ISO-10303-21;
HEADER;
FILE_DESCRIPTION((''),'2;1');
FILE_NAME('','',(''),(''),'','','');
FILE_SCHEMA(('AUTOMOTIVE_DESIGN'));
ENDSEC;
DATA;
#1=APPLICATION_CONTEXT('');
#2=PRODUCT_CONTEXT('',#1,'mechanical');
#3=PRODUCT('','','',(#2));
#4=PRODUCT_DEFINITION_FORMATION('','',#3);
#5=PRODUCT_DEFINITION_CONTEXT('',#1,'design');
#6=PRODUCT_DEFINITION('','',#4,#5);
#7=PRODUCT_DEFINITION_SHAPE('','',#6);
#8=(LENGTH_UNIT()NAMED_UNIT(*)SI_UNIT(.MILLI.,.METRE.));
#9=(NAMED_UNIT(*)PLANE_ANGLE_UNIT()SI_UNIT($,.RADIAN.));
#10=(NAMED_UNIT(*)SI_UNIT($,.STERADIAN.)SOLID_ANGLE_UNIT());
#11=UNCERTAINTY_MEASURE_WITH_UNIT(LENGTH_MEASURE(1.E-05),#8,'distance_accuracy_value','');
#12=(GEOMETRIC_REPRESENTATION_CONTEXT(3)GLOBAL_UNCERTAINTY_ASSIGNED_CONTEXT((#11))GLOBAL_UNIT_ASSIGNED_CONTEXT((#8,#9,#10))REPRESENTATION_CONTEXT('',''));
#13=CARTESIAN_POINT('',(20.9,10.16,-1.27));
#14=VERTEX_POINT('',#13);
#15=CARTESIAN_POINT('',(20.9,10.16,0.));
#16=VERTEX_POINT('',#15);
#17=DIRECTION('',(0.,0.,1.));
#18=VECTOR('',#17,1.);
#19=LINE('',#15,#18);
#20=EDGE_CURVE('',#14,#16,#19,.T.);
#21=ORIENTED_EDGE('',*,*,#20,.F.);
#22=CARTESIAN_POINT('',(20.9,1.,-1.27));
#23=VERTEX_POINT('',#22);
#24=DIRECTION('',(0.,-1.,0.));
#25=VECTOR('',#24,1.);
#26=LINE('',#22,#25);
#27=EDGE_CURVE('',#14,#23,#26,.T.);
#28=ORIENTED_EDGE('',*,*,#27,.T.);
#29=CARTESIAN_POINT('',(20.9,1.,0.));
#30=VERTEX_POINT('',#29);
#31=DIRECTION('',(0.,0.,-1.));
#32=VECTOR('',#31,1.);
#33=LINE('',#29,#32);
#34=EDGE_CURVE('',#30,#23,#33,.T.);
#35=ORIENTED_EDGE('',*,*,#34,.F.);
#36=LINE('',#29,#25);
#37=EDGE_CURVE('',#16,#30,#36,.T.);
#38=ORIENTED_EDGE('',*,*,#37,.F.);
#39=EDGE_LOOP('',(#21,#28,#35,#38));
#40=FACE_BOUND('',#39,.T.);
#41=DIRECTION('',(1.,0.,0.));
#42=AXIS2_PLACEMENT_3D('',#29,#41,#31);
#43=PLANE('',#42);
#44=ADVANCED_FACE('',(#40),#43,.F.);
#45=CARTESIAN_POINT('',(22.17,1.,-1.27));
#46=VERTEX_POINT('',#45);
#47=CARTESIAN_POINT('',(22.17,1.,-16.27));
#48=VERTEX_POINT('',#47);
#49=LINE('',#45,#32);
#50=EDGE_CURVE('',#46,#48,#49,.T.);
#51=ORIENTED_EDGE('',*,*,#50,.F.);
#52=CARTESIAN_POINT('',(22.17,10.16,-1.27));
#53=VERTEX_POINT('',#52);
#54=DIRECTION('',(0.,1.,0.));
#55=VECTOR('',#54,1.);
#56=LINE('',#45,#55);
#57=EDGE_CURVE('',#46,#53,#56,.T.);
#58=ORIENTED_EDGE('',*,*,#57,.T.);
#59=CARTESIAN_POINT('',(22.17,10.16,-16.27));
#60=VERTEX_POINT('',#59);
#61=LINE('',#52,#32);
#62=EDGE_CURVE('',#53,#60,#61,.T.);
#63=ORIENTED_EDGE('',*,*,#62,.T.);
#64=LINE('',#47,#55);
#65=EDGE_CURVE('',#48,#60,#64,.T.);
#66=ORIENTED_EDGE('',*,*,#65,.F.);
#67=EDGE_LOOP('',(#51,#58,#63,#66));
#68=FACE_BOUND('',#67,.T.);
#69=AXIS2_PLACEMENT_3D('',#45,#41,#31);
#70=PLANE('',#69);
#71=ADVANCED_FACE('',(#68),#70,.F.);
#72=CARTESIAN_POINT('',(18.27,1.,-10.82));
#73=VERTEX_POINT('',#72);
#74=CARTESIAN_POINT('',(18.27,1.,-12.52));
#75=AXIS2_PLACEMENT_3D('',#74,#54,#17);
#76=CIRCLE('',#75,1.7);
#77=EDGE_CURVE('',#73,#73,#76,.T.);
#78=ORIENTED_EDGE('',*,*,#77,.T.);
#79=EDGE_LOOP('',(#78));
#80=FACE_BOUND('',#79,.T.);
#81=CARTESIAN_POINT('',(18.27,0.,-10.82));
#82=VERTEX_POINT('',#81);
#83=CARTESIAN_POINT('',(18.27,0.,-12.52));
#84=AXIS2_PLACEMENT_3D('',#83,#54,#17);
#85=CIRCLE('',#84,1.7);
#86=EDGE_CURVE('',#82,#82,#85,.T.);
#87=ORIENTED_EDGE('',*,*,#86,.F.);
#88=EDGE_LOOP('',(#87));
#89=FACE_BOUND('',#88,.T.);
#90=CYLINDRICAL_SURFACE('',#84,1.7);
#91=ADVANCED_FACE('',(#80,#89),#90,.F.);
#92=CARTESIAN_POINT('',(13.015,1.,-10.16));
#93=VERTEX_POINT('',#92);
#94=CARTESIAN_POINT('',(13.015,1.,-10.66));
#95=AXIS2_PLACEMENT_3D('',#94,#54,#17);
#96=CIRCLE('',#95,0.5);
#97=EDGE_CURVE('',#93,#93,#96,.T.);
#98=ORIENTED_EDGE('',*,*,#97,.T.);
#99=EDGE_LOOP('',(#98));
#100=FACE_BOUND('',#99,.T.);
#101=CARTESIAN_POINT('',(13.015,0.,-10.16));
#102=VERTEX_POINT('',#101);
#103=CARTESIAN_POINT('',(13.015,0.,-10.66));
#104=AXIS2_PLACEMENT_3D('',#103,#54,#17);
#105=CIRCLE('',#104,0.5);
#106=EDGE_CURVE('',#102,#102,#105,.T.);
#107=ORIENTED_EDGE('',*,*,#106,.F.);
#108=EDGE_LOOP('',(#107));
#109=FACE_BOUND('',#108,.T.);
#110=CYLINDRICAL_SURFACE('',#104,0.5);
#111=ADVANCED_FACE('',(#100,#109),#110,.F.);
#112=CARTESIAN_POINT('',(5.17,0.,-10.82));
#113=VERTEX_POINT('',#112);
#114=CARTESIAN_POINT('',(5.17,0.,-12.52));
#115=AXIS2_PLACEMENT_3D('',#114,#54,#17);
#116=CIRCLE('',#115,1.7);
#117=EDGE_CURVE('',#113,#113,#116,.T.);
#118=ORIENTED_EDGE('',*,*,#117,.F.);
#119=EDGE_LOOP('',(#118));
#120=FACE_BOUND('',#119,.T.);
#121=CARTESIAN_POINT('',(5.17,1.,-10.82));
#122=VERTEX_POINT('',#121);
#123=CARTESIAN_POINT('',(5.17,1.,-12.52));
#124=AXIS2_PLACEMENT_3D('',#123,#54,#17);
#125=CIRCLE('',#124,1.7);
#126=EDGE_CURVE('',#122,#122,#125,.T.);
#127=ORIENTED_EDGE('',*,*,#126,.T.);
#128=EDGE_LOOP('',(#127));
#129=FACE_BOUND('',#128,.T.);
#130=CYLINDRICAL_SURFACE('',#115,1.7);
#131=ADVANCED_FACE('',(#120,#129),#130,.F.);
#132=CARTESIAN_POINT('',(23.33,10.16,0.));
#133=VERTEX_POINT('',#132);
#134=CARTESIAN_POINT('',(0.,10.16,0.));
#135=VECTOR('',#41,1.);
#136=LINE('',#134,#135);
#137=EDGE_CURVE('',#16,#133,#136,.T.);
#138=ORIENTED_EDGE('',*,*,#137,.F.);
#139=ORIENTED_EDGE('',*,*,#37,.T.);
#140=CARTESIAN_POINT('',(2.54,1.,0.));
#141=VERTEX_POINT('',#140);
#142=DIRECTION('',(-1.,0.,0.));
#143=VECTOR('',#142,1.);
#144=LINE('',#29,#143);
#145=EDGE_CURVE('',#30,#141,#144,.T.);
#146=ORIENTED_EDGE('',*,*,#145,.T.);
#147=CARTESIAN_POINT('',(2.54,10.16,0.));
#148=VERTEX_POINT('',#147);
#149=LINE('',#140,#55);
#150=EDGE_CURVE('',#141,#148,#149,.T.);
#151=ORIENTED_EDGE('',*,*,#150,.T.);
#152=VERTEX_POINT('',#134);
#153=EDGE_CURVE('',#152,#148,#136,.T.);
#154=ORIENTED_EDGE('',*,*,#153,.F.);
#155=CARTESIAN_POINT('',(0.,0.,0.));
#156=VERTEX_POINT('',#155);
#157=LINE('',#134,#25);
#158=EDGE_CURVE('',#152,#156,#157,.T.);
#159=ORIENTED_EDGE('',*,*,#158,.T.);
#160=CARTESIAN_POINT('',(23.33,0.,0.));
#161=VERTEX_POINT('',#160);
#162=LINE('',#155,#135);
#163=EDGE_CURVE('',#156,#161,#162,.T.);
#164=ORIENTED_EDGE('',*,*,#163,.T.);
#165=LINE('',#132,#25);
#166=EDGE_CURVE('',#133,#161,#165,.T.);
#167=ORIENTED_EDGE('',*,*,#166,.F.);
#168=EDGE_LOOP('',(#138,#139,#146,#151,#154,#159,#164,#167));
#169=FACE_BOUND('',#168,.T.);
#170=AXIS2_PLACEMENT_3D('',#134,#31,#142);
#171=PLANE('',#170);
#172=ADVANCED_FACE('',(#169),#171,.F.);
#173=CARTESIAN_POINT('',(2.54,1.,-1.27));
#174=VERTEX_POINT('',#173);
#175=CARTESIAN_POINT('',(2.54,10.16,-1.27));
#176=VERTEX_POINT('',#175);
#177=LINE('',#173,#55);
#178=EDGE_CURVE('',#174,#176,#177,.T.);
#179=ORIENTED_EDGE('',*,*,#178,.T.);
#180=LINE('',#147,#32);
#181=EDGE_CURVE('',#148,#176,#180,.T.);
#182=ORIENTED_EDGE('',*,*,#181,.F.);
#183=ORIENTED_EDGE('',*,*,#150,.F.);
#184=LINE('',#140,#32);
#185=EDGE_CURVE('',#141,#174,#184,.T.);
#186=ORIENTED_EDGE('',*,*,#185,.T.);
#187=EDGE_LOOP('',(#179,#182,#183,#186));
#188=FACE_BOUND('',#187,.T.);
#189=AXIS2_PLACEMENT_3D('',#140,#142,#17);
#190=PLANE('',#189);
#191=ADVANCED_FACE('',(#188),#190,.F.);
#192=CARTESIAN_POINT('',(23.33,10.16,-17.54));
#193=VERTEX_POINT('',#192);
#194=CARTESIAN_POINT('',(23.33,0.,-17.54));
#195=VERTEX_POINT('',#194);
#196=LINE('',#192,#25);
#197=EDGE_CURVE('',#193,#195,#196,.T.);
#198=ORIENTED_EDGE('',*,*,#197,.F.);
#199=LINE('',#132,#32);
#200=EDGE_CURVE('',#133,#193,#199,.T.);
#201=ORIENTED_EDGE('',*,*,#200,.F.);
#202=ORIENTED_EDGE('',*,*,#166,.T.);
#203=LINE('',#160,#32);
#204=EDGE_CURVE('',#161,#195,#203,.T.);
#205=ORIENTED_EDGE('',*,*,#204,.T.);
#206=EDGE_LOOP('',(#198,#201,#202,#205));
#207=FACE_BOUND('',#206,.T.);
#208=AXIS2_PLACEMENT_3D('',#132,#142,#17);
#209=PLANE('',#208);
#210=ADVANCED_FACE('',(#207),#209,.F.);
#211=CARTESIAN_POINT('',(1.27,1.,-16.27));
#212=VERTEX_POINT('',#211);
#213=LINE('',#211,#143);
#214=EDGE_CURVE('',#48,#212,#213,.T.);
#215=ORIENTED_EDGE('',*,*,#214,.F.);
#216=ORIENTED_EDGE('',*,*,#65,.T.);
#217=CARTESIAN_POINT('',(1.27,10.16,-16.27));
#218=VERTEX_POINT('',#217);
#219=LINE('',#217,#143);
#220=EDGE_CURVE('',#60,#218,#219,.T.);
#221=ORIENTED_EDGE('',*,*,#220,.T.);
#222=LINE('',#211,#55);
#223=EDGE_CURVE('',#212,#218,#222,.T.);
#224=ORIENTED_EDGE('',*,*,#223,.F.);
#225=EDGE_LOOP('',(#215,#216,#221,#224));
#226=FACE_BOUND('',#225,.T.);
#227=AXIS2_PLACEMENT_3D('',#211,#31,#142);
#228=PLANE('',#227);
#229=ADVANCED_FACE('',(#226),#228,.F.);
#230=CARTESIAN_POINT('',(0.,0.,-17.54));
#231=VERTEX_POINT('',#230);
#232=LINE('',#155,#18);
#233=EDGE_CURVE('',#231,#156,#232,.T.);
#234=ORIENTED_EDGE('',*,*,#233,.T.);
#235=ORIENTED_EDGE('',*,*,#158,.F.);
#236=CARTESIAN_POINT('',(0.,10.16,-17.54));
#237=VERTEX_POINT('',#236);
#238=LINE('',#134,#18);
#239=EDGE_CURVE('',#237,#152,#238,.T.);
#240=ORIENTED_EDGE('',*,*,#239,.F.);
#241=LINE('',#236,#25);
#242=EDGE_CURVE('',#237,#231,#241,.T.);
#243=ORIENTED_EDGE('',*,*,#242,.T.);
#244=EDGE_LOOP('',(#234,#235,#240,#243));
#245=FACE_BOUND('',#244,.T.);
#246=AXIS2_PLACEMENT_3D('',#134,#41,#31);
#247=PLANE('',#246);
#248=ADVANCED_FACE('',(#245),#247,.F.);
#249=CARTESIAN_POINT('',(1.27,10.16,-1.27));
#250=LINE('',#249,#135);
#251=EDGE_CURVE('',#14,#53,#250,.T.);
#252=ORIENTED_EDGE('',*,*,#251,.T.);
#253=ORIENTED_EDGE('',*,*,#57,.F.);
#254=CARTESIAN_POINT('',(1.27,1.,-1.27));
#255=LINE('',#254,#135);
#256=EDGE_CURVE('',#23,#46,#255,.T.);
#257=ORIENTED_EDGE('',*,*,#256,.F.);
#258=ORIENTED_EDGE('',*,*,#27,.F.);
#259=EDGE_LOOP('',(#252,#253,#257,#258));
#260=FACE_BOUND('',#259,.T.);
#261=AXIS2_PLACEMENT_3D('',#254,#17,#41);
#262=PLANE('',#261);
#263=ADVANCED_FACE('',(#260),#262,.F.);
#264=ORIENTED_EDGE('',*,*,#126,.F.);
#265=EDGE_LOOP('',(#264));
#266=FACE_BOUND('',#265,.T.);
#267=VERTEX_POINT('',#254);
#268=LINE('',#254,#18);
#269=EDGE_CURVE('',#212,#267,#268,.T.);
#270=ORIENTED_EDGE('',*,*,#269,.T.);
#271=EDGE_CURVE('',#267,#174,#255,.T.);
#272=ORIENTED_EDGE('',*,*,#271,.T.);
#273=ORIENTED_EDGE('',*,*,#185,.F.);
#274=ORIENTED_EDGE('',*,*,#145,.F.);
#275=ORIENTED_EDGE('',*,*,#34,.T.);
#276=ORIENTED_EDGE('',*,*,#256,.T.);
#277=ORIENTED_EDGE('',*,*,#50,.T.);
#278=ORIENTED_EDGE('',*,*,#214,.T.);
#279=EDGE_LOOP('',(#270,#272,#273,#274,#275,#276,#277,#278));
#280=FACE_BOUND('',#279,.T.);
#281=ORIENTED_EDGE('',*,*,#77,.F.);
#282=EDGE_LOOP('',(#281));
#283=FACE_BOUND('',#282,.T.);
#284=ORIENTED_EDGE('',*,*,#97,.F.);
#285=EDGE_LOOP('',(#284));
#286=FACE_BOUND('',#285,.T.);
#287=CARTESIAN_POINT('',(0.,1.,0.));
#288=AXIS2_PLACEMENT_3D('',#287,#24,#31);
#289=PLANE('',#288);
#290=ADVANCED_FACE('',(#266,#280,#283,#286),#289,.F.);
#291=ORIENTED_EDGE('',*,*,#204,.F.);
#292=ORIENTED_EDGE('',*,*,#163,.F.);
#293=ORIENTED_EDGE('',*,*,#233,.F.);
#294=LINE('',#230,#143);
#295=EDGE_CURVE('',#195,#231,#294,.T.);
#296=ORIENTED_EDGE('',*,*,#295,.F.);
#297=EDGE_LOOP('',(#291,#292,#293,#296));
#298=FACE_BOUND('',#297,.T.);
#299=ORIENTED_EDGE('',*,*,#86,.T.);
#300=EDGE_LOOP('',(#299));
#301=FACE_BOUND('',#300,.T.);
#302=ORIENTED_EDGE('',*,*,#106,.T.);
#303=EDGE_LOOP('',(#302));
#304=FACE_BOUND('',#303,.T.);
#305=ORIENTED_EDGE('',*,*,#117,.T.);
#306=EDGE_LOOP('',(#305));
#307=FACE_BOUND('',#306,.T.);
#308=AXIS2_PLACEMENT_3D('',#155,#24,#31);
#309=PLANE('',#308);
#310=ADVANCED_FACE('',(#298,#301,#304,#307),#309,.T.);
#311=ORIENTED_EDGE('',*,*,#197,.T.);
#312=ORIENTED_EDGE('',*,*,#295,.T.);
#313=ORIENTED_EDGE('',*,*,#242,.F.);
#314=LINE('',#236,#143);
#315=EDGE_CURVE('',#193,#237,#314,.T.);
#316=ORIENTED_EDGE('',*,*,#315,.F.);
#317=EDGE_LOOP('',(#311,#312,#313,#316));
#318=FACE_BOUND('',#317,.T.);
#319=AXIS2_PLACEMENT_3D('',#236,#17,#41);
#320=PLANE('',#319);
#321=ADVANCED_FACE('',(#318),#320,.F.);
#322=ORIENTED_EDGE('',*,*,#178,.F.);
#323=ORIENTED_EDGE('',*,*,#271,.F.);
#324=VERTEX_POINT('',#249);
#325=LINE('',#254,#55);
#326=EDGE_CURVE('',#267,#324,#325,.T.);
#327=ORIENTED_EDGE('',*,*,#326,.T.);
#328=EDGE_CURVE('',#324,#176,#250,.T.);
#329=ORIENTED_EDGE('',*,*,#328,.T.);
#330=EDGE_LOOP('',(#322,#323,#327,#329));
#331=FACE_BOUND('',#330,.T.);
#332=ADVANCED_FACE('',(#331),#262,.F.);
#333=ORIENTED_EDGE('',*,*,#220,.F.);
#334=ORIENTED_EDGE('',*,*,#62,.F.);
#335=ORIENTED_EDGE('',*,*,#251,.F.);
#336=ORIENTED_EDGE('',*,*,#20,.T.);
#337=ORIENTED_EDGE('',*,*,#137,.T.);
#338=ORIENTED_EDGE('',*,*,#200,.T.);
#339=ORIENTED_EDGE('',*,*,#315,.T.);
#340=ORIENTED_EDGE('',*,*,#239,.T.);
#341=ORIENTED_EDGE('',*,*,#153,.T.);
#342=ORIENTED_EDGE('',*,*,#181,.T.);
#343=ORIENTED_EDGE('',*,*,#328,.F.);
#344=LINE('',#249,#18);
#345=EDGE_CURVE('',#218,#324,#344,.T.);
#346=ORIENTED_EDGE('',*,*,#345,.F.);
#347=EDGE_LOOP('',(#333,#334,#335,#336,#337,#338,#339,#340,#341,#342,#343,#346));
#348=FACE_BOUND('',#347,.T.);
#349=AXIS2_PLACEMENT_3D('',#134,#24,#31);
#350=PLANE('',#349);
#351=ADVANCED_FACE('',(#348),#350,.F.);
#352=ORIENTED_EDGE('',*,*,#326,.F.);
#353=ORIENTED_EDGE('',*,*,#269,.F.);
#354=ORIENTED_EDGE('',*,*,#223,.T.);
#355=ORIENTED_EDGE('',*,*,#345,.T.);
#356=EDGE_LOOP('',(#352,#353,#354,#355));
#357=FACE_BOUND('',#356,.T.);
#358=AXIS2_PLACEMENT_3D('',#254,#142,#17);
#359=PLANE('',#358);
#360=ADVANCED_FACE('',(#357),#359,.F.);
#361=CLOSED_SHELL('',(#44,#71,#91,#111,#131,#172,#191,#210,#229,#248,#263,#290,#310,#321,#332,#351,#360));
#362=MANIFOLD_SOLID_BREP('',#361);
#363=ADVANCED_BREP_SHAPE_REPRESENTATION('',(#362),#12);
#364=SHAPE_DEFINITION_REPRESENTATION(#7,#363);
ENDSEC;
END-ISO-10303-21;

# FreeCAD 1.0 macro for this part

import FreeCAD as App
import Part
import Sketcher
Q = App.Units.Quantity


def add_polygon(sketch, points):
    """Adds a closed chain of lines whose ends are joined by coincident constraints."""
    first, n = sketch.GeometryCount, len(points)
    for a, b in zip(points, points[1:] + points[:1]):
        sketch.addGeometry(Part.LineSegment(App.Vector(*a, 0), App.Vector(*b, 0)), False)
    for i in range(n):
        sketch.addConstraint(Sketcher.Constraint("Coincident", first + i, 2, first + (i + 1) % n, 1))

doc = App.newDocument("Part")
body = doc.addObject("PartDesign::Body", "Body")

sketch1 = body.newObject("Sketcher::SketchObject", "Sketch")
sketch1.AttachmentSupport = (doc.getObject("XZ_Plane"), [""])
sketch1.MapMode = "FlatFace"
add_polygon(sketch1, [(0, -18), (0, 0), (23, 0), (23, -18)])
sketch1.addConstraint([
    Sketcher.Constraint("Vertical", 0),
    Sketcher.Constraint("Horizontal", 1),
    Sketcher.Constraint("Vertical", 2),
    Sketcher.Constraint("Horizontal", 3),
    Sketcher.Constraint("Coincident", 0, 2, -1, 1),
    Sketcher.Constraint("DistanceX", 1, 1, 1, 2, Q("23.33 mm")),
    Sketcher.Constraint("DistanceY", 0, 1, 0, 2, Q("17.54 mm")),
])
pad1 = body.newObject("PartDesign::Pad", "Pad")
pad1.Profile = sketch1
pad1.Length = 10.16
pad1.Reversed = True

sketch2 = body.newObject("Sketcher::SketchObject", "Sketch001")
sketch2.AttachmentSupport = (doc.getObject("XZ_Plane"), [""])
sketch2.MapMode = "FlatFace"
sketch2.AttachmentOffset = App.Placement(App.Vector(0, 0, -10.16), App.Rotation())
add_polygon(sketch2, [(1, -16), (1, -1), (22, -1), (22, -16)])
sketch2.addConstraint([
    Sketcher.Constraint("Vertical", 0),
    Sketcher.Constraint("Horizontal", 1),
    Sketcher.Constraint("Vertical", 2),
    Sketcher.Constraint("Horizontal", 3),
    Sketcher.Constraint("DistanceY", 0, 1, 0, 2, Q("15 mm")),
    Sketcher.Constraint("DistanceX", 1, 1, 1, 2, Q("20.9 mm")),
    Sketcher.Constraint("DistanceX", -1, 1, 0, 2, Q("1.27 mm")),
    Sketcher.Constraint("DistanceY", 0, 2, -1, 1, Q("1.27 mm")),
])
pocket1 = body.newObject("PartDesign::Pocket", "Pocket")
pocket1.Profile = sketch2
pocket1.Length = 9.16
pocket1.Reversed = True

sketch3 = body.newObject("Sketcher::SketchObject", "Sketch002")
sketch3.AttachmentSupport = (doc.getObject("XZ_Plane"), [""])
sketch3.MapMode = "FlatFace"
sketch3.AttachmentOffset = App.Placement(App.Vector(0, 0, -1), App.Rotation())
sketch3.addGeometry([
    Part.Circle(App.Vector(5.2, -12.5, 0), App.Vector(0, 0, 1), 1.7),
    Part.Circle(App.Vector(18.3, -12.5, 0), App.Vector(0, 0, 1), 1.7),
    Part.Circle(App.Vector(13, -10.7, 0), App.Vector(0, 0, 1), 0.5),
], False)
sketch3.addConstraint([
    Sketcher.Constraint("Equal", 0, 1),
    Sketcher.Constraint("Horizontal", 0, 3, 1, 3),
    Sketcher.Constraint("Diameter", 2, Q("1 mm")),
    Sketcher.Constraint("Diameter", 0, Q("3.4 mm")),
    Sketcher.Constraint("DistanceX", 0, 3, 1, 3, Q("13.1 mm")),
    Sketcher.Constraint("DistanceX", -1, 1, 0, 3, Q("5.17 mm")),
    Sketcher.Constraint("DistanceY", 0, 3, -1, 1, Q("12.52 mm")),
    Sketcher.Constraint("DistanceY", 2, 3, -1, 1, Q("10.66 mm")),
    Sketcher.Constraint("DistanceX", -1, 1, 2, 3, Q("13.015 mm")),
])
pocket2 = body.newObject("PartDesign::Pocket", "Pocket001")
pocket2.Profile = sketch3
pocket2.Type = "ThroughAll"
pocket2.Reversed = True

sketch4 = body.newObject("Sketcher::SketchObject", "Sketch003")
sketch4.AttachmentSupport = (doc.getObject("XY_Plane"), [""])
sketch4.MapMode = "FlatFace"
sketch4.AttachmentOffset = App.Placement(App.Vector(0, 0, -1.27), App.Rotation())
add_polygon(sketch4, [(21, 13), (21, 1), (3, 1), (3, 13)])
sketch4.addConstraint([
    Sketcher.Constraint("Vertical", 0),
    Sketcher.Constraint("Horizontal", 1),
    Sketcher.Constraint("Vertical", 2),
    Sketcher.Constraint("Horizontal", 3),
    Sketcher.Constraint("DistanceY", -1, 1, 0, 2, Q("1 mm")),
    Sketcher.Constraint("DistanceX", 1, 2, 1, 1, Q("18.36 mm")),
    Sketcher.Constraint("DistanceX", -1, 1, 0, 2, Q("20.9 mm")),
    Sketcher.Constraint("DistanceY", 0, 2, 0, 1, Q("12.011949 mm")),
])
pocket3 = body.newObject("PartDesign::Pocket", "Pocket002")
pocket3.Profile = sketch4
pocket3.Type = "ThroughAll"
pocket3.Reversed = True

doc.recompute()
